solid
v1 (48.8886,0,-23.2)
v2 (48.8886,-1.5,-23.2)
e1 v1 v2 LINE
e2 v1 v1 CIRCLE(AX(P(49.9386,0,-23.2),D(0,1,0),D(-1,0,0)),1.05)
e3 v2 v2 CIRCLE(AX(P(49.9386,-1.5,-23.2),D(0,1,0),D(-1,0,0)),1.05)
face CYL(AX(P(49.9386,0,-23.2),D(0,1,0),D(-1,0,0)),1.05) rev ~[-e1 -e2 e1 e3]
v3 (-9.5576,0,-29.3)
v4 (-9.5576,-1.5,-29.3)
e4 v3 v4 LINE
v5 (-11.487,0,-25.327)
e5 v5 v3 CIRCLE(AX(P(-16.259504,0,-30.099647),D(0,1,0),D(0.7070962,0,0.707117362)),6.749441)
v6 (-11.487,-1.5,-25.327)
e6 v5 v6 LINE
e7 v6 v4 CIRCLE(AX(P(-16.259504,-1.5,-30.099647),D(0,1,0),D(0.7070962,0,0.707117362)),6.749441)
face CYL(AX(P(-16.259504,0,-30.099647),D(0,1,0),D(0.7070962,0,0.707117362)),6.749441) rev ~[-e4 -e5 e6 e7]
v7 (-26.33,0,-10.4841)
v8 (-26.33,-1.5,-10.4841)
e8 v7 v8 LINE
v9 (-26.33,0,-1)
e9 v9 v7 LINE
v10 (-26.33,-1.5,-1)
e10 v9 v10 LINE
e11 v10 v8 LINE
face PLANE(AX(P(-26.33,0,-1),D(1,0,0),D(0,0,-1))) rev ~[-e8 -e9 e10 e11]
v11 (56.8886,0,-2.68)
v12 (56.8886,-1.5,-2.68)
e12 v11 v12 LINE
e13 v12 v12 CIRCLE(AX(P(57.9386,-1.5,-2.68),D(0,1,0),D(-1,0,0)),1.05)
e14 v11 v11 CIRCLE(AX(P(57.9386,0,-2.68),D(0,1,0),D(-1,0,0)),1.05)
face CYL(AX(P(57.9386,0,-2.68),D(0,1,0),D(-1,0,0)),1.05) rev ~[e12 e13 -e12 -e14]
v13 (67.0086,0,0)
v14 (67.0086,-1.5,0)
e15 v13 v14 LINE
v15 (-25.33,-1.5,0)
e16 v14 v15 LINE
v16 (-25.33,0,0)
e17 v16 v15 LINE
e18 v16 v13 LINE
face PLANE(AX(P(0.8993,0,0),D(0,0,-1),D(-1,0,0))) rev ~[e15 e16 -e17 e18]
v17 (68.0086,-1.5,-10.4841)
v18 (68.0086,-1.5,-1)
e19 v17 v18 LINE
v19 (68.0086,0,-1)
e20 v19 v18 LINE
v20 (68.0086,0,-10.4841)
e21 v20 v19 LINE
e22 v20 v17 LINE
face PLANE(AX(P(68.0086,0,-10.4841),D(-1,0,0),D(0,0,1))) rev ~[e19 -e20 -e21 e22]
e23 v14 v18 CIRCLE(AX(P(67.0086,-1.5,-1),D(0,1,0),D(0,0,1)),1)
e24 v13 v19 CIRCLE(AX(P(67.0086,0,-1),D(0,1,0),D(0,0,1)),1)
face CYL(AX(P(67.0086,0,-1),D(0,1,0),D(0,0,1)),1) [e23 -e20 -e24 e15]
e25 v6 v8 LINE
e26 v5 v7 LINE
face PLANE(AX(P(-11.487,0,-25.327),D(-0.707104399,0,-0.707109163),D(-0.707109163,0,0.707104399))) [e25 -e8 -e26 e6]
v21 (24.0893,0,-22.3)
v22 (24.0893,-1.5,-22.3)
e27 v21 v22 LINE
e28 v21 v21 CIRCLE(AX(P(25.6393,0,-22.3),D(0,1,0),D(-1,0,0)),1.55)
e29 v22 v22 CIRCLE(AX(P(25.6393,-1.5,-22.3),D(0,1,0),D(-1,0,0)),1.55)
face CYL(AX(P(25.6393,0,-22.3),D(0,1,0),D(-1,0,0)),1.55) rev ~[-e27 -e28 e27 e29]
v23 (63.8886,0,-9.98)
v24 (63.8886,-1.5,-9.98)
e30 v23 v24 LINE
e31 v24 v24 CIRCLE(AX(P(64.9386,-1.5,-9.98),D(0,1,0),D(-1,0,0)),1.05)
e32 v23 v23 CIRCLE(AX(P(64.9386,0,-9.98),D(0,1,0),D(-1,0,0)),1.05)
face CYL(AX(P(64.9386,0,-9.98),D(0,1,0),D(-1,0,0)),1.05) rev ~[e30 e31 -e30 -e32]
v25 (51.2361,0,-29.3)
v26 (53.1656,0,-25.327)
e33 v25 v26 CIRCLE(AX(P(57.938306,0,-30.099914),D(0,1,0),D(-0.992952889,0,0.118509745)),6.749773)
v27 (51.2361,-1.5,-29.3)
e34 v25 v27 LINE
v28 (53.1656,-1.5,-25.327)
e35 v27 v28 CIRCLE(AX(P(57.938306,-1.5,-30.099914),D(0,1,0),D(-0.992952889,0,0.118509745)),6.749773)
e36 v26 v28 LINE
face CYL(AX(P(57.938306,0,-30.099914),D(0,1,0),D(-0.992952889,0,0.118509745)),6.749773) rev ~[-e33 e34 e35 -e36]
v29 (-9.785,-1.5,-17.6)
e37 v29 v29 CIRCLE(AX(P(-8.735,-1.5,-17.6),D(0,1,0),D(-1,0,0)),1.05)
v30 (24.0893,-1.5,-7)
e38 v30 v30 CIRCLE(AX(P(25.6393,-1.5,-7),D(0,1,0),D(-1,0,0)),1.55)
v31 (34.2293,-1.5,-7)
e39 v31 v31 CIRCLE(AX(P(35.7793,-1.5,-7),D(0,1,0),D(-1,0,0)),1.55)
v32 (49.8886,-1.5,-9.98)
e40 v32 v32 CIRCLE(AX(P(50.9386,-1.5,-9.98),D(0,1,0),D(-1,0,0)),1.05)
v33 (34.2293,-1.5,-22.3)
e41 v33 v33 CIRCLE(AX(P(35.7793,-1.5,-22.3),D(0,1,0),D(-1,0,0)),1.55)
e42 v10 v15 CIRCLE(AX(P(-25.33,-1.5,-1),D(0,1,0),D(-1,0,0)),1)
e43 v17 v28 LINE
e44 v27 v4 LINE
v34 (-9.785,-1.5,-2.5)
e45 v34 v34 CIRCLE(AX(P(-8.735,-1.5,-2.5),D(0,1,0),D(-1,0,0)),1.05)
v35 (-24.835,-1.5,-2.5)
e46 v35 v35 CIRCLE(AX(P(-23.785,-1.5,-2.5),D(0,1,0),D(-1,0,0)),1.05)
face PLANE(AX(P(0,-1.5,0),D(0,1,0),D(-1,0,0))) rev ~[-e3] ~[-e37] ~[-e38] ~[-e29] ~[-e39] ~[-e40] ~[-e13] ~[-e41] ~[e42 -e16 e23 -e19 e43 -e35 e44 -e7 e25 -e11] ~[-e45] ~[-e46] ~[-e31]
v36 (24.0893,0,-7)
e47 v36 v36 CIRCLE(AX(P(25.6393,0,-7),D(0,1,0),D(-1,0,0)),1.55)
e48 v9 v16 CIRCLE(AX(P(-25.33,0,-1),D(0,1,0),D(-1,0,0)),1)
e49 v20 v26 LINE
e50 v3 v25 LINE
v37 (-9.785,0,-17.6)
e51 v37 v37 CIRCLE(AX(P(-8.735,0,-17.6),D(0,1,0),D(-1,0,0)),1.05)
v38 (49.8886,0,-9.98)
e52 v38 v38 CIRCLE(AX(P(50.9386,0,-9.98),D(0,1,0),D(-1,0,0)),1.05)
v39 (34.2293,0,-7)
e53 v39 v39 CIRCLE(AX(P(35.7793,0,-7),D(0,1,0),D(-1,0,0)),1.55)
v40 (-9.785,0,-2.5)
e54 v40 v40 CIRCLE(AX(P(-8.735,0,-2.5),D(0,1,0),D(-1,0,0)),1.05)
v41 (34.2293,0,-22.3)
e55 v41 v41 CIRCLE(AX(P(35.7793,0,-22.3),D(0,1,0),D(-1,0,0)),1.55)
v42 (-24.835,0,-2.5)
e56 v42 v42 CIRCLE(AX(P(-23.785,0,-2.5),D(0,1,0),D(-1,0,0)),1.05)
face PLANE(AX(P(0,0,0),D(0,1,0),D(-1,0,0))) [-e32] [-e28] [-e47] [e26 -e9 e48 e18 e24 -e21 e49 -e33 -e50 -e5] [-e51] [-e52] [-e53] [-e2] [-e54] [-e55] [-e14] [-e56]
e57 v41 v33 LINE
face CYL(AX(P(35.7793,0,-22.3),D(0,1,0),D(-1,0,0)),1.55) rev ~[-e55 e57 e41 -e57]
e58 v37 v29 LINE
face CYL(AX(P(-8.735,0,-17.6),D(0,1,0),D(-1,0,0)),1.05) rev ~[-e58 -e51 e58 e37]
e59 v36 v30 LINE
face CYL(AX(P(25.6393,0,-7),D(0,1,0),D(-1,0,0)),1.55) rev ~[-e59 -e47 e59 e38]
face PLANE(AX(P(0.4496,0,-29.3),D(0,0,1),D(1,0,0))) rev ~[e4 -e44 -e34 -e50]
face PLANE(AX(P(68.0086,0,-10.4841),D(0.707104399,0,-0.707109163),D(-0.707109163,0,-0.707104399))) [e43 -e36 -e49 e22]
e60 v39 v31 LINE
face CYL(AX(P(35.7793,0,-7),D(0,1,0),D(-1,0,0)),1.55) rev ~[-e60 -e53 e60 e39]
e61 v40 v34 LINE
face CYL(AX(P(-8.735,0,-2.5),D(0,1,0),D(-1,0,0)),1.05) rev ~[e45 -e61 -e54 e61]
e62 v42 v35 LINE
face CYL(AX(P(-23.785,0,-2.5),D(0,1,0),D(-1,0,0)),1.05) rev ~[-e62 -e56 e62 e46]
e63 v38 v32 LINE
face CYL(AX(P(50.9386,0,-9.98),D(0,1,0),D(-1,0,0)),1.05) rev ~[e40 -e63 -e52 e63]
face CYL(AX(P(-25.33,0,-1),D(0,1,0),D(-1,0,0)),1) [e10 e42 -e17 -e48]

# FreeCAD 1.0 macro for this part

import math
import FreeCAD as App
import Part
import Sketcher
Q = App.Units.Quantity

doc = App.newDocument("Part")
body = doc.addObject("PartDesign::Body", "Body")

sketch1 = doc.addObject("Sketcher::SketchObject", "Sketch")
body.addObject(sketch1)
sketch1.AttachmentSupport = (doc.XZ_Plane, [""])
sketch1.MapMode = "FlatFace"
sketch1.addGeometry([
    Part.ArcOfCircle(Part.Circle(App.Vector(-16.3, -30.1, 0), App.Vector(0, 0, 1), 6.8), math.radians(7), math.radians(45)),
    Part.LineSegment(App.Vector(-11.5, -25.3, 0), App.Vector(-26.3, -10.5, 0)),
    Part.LineSegment(App.Vector(-26.3, -10.5, 0), App.Vector(-26.3, -1, 0)),
    Part.ArcOfCircle(Part.Circle(App.Vector(-25.3, -1, 0), App.Vector(0, 0, 1), 1), math.radians(90), math.radians(180)),
    Part.LineSegment(App.Vector(-25.3, 0, 0), App.Vector(67, 0, 0)),
    Part.ArcOfCircle(Part.Circle(App.Vector(67, -1, 0), App.Vector(0, 0, 1), 1), math.radians(0), math.radians(90)),
    Part.LineSegment(App.Vector(68, -1, 0), App.Vector(68, -10.5, 0)),
    Part.LineSegment(App.Vector(68, -10.5, 0), App.Vector(53.2, -25.3, 0)),
    Part.ArcOfCircle(Part.Circle(App.Vector(57.9, -30.1, 0), App.Vector(0, 0, 1), 6.8), math.radians(135), math.radians(173)),
    Part.LineSegment(App.Vector(51.2, -29.3, 0), App.Vector(-9.6, -29.3, 0)),
    Part.Circle(App.Vector(25.6, -7, 0), App.Vector(0, 0, 1), 1.6),
    Part.Circle(App.Vector(35.8, -22.3, 0), App.Vector(0, 0, 1), 1.6),
    Part.Circle(App.Vector(25.6, -22.3, 0), App.Vector(0, 0, 1), 1.6),
    Part.Circle(App.Vector(35.8, -7, 0), App.Vector(0, 0, 1), 1.6),
    Part.Circle(App.Vector(-23.8, -2.5, 0), App.Vector(0, 0, 1), 1.1),
    Part.Circle(App.Vector(-8.7, -17.6, 0), App.Vector(0, 0, 1), 1.1),
    Part.Circle(App.Vector(-8.7, -2.5, 0), App.Vector(0, 0, 1), 1.1),
    Part.Circle(App.Vector(57.9, -2.7, 0), App.Vector(0, 0, 1), 1.1),
    Part.Circle(App.Vector(49.9, -23.2, 0), App.Vector(0, 0, 1), 1.1),
    Part.Circle(App.Vector(64.9, -10, 0), App.Vector(0, 0, 1), 1.1),
    Part.Circle(App.Vector(50.9, -10, 0), App.Vector(0, 0, 1), 1.1),
], False)
sketch1.addConstraint([
    Sketcher.Constraint("Tangent", 0, 2, 1, 1),
    Sketcher.Constraint("Coincident", 1, 2, 2, 1),
    Sketcher.Constraint("Tangent", 2, 2, 3, 2),
    Sketcher.Constraint("Tangent", 3, 1, 4, 1),
    Sketcher.Constraint("Tangent", 4, 2, 5, 2),
    Sketcher.Constraint("Tangent", 5, 1, 6, 1),
    Sketcher.Constraint("Coincident", 6, 2, 7, 1),
    Sketcher.Constraint("Tangent", 7, 2, 8, 1),
    Sketcher.Constraint("Coincident", 8, 2, 9, 1),
    Sketcher.Constraint("Coincident", 9, 2, 0, 1),
    Sketcher.Constraint("Vertical", 2),
    Sketcher.Constraint("Horizontal", 4),
    Sketcher.Constraint("Vertical", 6),
    Sketcher.Constraint("Horizontal", 9),
    Sketcher.Constraint("Equal", 3, 5),
    Sketcher.Constraint("Equal", 0, 8),
    Sketcher.Constraint("Equal", 10, 11),
    Sketcher.Constraint("Equal", 11, 12),
    Sketcher.Constraint("Equal", 12, 13),
    Sketcher.Constraint("Equal", 14, 15),
    Sketcher.Constraint("Equal", 15, 16),
    Sketcher.Constraint("Equal", 16, 17),
    Sketcher.Constraint("Equal", 17, 18),
    Sketcher.Constraint("Equal", 18, 19),
    Sketcher.Constraint("Equal", 19, 20),
    Sketcher.Constraint("PointOnObject", 3, 1, -1),
    Sketcher.Constraint("Perpendicular", 1, 7),
    Sketcher.Constraint("Horizontal", 0, 3, 8, 3),
    Sketcher.Constraint("Horizontal", 11, 3, 12, 3),
    Sketcher.Constraint("Horizontal", 10, 3, 13, 3),
    Sketcher.Constraint("Horizontal", 14, 3, 16, 3),
    Sketcher.Constraint("Horizontal", 19, 3, 20, 3),
    Sketcher.Constraint("Horizontal", 1, 2, 6, 2),
    Sketcher.Constraint("Horizontal", 0, 2, 7, 2),
    Sketcher.Constraint("Vertical", 10, 3, 12, 3),
    Sketcher.Constraint("Vertical", 11, 3, 13, 3),
    Sketcher.Constraint("Vertical", 15, 3, 16, 3),
    Sketcher.Constraint("Vertical", 8, 3, 17, 3),
    Sketcher.Constraint("Radius", 3, Q("1 mm")),
    Sketcher.Constraint("Diameter", 10, Q("3.1 mm")),
    Sketcher.Constraint("Diameter", 14, Q("2.1 mm")),
    Sketcher.Constraint("Radius", 0, Q("6.75 mm")),
    Sketcher.Constraint("DistanceY", 10, 3, -1, 1, Q("7 mm")),
    Sketcher.Constraint("DistanceX", 18, 3, 8, 3, Q("8 mm")),
    Sketcher.Constraint("DistanceX", 17, 3, 19, 3, Q("7 mm")),
    Sketcher.Constraint("DistanceX", 20, 3, 17, 3, Q("7 mm")),
    Sketcher.Constraint("DistanceY", 8, 2, 11, 3, Q("7 mm")),
    Sketcher.Constraint("DistanceY", 0, 3, -1, 1, Q("30.1 mm")),
    Sketcher.Constraint("DistanceY", 11, 3, -1, 1, Q("22.3 mm")),
    Sketcher.Constraint("DistanceY", 14, 3, -1, 1, Q("2.5 mm")),
    Sketcher.Constraint("DistanceY", 15, 3, -1, 1, Q("17.6 mm")),
    Sketcher.Constraint("DistanceY", 18, 3, -1, 1, Q("23.2 mm")),
    Sketcher.Constraint("DistanceY", 19, 3, 17, 3, Q("7.3 mm")),
    Sketcher.Constraint("DistanceY", 2, 1, 2, 2, Q("9.484 mm")),
    Sketcher.Constraint("DistanceX", 0, 3, -1, 1, Q("16.26 mm")),
    Sketcher.Constraint("DistanceY", 17, 3, -1, 1, Q("2.68 mm")),
    Sketcher.Constraint("DistanceX", 10, 3, 11, 3, Q("10.14 mm")),
    Sketcher.Constraint("DistanceX", 14, 3, 15, 3, Q("15.05 mm")),
    Sketcher.Constraint("DistanceX", 4, 1, 4, 2, Q("92.3386 mm")),
    Sketcher.Constraint("DistanceX", 14, 3, -1, 1, Q("23.785 mm")),
    Sketcher.Constraint("DistanceX", -1, 1, 10, 3, Q("25.6393 mm")),
])
pad1 = doc.addObject("PartDesign::Pad", "Pad")
body.addObject(pad1)
pad1.Profile = sketch1
pad1.Length = 1.5

doc.recompute()
